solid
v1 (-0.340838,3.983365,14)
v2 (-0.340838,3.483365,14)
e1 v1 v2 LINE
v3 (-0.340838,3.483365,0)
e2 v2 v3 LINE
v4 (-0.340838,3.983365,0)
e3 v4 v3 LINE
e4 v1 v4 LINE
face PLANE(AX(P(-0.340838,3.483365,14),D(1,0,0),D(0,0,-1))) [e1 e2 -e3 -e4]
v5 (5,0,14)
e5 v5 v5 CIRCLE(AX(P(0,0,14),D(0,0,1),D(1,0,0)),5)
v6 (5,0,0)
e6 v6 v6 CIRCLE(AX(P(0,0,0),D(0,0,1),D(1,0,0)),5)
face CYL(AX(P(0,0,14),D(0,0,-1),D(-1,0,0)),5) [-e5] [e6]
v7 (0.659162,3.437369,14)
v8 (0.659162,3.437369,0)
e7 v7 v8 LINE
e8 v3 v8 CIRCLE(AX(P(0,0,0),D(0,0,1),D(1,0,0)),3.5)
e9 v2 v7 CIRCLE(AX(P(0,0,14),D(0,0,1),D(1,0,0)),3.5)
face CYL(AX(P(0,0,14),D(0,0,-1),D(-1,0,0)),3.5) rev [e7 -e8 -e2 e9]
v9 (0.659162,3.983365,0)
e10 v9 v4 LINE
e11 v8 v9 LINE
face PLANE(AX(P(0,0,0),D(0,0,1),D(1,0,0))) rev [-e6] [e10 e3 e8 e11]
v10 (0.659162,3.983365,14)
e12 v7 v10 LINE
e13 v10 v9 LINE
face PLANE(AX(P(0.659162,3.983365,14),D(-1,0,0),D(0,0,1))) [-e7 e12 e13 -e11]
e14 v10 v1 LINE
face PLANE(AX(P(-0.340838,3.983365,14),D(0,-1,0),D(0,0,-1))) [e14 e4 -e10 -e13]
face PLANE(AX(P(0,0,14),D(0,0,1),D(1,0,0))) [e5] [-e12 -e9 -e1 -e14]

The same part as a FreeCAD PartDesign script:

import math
import FreeCAD as App
import Part
import Sketcher

V = App.Vector
Q = App.Units.Quantity

doc = App.newDocument("Part")
body = doc.addObject("PartDesign::Body", "Body")

# Sketch on XY plane
sketch1 = doc.addObject("Sketcher::SketchObject", "Sketch")
body.addObject(sketch1)
sketch1.AttachmentSupport = (doc.XY_Plane, [""])
sketch1.MapMode = "FlatFace"
sketch1.addGeometry([
    Part.Circle(V(0, 0, 0), V(0, 0, 1), 5),  # 0
    Part.ArcOfCircle(Part.Circle(V(0, 0, 0), V(0, 0, 1), 3.5), math.radians(95.588451), math.radians(439.144543)),  # 1
    Part.LineSegment(V(-0.340838, 3.483365, 0), V(-0.340838, 3.983365, 0)),  # 2
    Part.LineSegment(V(-0.340838, 3.983365, 0), V(0.659162, 3.983365, 0)),  # 3
    Part.LineSegment(V(0.659162, 3.983365, 0), V(0.659162, 3.437369, 0)),  # 4
], False)
sketch1.addConstraint([
    Sketcher.Constraint("Coincident", 1, 1, 2, 1),
    Sketcher.Constraint("Coincident", 2, 2, 3, 1),
    Sketcher.Constraint("Coincident", 3, 2, 4, 1),
    Sketcher.Constraint("Coincident", 4, 2, 1, 2),
    Sketcher.Constraint("Vertical", 2),
    Sketcher.Constraint("Horizontal", 3),
    Sketcher.Constraint("Vertical", 4),
    Sketcher.Constraint("Coincident", 0, 3, -1, 1),
    Sketcher.Constraint("Coincident", 1, 3, -1, 1),
    Sketcher.Constraint("Diameter", 0, Q("10 mm")),
    Sketcher.Constraint("Radius", 1, Q("3.5 mm")),
    Sketcher.Constraint("DistanceX", 3, 1, 3, 2, Q("1 mm")),
    Sketcher.Constraint("DistanceY", 2, 1, 2, 2, Q("0.5 mm")),
    Sketcher.Constraint("DistanceY", 4, 2, 4, 1, Q("0.545996 mm")),
])
pad1 = doc.addObject("PartDesign::Pad", "Pad")
body.addObject(pad1)
pad1.Profile = sketch1
pad1.Length = 14

doc.recompute()
